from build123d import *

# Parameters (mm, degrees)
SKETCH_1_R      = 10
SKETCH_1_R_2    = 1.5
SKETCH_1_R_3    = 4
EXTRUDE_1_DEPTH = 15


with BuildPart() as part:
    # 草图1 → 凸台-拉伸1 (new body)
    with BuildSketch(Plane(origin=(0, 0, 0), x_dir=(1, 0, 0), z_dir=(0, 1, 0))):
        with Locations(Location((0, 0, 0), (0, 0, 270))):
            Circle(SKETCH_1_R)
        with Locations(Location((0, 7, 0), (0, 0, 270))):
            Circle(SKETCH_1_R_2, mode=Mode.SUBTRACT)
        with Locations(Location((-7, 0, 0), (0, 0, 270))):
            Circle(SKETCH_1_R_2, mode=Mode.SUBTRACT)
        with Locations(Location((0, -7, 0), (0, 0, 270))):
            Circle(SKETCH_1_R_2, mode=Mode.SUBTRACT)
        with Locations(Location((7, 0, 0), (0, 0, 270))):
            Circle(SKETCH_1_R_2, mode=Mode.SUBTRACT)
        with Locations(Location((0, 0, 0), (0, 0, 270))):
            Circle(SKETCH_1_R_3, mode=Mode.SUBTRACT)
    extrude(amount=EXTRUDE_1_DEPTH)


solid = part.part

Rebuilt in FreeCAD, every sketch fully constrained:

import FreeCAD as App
import Part
import Sketcher

V = App.Vector

doc = App.newDocument("Part")
body = doc.addObject("PartDesign::Body", "Body")

sketch1 = body.newObject("Sketcher::SketchObject", "Sketch")
sketch1.AttachmentSupport = (doc.getObject("XZ_Plane"), [""])
sketch1.MapMode = "FlatFace"
sketch1.addGeometry([
    Part.Circle(V(0, 0, 0), V(0, 0, 1), 10),
    Part.Circle(V(0, -7, 0), V(0, 0, 1), 1.5),
    Part.Circle(V(-7, 0, 0), V(0, 0, 1), 1.5),
    Part.Circle(V(7, 0, 0), V(0, 0, 1), 1.5),
    Part.Circle(V(0, 0, 0), V(0, 0, 1), 4),
    Part.Circle(V(0, 7, 0), V(0, 0, 1), 1.5),
], False)
sketch1.addConstraint([
    Sketcher.Constraint("Coincident", 0, 3, -1, 1),
    Sketcher.Constraint("Coincident", 4, 3, -1, 1),
    Sketcher.Constraint("Equal", 1, 2),
    Sketcher.Constraint("Equal", 2, 3),
    Sketcher.Constraint("Equal", 3, 5),
    Sketcher.Constraint("Symmetric", 2, 3, 3, 3, -1, 1),
    Sketcher.Constraint("Symmetric", 1, 3, 5, 3, -1, 1),
    Sketcher.Constraint("PointOnObject", 1, 3, -2),
    Sketcher.Constraint("PointOnObject", 2, 3, -1),
    Sketcher.Constraint("Diameter", 0, 20.0),
    Sketcher.Constraint("Diameter", 1, 3.0),
    Sketcher.Constraint("Diameter", 4, 8.0),
    Sketcher.Constraint("DistanceY", 1, 3, -1, 1, 7.0),
    Sketcher.Constraint("DistanceX", 2, 3, -1, 1, 7.0),
])
pad1 = body.newObject("PartDesign::Pad", "Pad")
pad1.Profile = sketch1
pad1.Length = 15
pad1.Reversed = True

doc.recompute()
